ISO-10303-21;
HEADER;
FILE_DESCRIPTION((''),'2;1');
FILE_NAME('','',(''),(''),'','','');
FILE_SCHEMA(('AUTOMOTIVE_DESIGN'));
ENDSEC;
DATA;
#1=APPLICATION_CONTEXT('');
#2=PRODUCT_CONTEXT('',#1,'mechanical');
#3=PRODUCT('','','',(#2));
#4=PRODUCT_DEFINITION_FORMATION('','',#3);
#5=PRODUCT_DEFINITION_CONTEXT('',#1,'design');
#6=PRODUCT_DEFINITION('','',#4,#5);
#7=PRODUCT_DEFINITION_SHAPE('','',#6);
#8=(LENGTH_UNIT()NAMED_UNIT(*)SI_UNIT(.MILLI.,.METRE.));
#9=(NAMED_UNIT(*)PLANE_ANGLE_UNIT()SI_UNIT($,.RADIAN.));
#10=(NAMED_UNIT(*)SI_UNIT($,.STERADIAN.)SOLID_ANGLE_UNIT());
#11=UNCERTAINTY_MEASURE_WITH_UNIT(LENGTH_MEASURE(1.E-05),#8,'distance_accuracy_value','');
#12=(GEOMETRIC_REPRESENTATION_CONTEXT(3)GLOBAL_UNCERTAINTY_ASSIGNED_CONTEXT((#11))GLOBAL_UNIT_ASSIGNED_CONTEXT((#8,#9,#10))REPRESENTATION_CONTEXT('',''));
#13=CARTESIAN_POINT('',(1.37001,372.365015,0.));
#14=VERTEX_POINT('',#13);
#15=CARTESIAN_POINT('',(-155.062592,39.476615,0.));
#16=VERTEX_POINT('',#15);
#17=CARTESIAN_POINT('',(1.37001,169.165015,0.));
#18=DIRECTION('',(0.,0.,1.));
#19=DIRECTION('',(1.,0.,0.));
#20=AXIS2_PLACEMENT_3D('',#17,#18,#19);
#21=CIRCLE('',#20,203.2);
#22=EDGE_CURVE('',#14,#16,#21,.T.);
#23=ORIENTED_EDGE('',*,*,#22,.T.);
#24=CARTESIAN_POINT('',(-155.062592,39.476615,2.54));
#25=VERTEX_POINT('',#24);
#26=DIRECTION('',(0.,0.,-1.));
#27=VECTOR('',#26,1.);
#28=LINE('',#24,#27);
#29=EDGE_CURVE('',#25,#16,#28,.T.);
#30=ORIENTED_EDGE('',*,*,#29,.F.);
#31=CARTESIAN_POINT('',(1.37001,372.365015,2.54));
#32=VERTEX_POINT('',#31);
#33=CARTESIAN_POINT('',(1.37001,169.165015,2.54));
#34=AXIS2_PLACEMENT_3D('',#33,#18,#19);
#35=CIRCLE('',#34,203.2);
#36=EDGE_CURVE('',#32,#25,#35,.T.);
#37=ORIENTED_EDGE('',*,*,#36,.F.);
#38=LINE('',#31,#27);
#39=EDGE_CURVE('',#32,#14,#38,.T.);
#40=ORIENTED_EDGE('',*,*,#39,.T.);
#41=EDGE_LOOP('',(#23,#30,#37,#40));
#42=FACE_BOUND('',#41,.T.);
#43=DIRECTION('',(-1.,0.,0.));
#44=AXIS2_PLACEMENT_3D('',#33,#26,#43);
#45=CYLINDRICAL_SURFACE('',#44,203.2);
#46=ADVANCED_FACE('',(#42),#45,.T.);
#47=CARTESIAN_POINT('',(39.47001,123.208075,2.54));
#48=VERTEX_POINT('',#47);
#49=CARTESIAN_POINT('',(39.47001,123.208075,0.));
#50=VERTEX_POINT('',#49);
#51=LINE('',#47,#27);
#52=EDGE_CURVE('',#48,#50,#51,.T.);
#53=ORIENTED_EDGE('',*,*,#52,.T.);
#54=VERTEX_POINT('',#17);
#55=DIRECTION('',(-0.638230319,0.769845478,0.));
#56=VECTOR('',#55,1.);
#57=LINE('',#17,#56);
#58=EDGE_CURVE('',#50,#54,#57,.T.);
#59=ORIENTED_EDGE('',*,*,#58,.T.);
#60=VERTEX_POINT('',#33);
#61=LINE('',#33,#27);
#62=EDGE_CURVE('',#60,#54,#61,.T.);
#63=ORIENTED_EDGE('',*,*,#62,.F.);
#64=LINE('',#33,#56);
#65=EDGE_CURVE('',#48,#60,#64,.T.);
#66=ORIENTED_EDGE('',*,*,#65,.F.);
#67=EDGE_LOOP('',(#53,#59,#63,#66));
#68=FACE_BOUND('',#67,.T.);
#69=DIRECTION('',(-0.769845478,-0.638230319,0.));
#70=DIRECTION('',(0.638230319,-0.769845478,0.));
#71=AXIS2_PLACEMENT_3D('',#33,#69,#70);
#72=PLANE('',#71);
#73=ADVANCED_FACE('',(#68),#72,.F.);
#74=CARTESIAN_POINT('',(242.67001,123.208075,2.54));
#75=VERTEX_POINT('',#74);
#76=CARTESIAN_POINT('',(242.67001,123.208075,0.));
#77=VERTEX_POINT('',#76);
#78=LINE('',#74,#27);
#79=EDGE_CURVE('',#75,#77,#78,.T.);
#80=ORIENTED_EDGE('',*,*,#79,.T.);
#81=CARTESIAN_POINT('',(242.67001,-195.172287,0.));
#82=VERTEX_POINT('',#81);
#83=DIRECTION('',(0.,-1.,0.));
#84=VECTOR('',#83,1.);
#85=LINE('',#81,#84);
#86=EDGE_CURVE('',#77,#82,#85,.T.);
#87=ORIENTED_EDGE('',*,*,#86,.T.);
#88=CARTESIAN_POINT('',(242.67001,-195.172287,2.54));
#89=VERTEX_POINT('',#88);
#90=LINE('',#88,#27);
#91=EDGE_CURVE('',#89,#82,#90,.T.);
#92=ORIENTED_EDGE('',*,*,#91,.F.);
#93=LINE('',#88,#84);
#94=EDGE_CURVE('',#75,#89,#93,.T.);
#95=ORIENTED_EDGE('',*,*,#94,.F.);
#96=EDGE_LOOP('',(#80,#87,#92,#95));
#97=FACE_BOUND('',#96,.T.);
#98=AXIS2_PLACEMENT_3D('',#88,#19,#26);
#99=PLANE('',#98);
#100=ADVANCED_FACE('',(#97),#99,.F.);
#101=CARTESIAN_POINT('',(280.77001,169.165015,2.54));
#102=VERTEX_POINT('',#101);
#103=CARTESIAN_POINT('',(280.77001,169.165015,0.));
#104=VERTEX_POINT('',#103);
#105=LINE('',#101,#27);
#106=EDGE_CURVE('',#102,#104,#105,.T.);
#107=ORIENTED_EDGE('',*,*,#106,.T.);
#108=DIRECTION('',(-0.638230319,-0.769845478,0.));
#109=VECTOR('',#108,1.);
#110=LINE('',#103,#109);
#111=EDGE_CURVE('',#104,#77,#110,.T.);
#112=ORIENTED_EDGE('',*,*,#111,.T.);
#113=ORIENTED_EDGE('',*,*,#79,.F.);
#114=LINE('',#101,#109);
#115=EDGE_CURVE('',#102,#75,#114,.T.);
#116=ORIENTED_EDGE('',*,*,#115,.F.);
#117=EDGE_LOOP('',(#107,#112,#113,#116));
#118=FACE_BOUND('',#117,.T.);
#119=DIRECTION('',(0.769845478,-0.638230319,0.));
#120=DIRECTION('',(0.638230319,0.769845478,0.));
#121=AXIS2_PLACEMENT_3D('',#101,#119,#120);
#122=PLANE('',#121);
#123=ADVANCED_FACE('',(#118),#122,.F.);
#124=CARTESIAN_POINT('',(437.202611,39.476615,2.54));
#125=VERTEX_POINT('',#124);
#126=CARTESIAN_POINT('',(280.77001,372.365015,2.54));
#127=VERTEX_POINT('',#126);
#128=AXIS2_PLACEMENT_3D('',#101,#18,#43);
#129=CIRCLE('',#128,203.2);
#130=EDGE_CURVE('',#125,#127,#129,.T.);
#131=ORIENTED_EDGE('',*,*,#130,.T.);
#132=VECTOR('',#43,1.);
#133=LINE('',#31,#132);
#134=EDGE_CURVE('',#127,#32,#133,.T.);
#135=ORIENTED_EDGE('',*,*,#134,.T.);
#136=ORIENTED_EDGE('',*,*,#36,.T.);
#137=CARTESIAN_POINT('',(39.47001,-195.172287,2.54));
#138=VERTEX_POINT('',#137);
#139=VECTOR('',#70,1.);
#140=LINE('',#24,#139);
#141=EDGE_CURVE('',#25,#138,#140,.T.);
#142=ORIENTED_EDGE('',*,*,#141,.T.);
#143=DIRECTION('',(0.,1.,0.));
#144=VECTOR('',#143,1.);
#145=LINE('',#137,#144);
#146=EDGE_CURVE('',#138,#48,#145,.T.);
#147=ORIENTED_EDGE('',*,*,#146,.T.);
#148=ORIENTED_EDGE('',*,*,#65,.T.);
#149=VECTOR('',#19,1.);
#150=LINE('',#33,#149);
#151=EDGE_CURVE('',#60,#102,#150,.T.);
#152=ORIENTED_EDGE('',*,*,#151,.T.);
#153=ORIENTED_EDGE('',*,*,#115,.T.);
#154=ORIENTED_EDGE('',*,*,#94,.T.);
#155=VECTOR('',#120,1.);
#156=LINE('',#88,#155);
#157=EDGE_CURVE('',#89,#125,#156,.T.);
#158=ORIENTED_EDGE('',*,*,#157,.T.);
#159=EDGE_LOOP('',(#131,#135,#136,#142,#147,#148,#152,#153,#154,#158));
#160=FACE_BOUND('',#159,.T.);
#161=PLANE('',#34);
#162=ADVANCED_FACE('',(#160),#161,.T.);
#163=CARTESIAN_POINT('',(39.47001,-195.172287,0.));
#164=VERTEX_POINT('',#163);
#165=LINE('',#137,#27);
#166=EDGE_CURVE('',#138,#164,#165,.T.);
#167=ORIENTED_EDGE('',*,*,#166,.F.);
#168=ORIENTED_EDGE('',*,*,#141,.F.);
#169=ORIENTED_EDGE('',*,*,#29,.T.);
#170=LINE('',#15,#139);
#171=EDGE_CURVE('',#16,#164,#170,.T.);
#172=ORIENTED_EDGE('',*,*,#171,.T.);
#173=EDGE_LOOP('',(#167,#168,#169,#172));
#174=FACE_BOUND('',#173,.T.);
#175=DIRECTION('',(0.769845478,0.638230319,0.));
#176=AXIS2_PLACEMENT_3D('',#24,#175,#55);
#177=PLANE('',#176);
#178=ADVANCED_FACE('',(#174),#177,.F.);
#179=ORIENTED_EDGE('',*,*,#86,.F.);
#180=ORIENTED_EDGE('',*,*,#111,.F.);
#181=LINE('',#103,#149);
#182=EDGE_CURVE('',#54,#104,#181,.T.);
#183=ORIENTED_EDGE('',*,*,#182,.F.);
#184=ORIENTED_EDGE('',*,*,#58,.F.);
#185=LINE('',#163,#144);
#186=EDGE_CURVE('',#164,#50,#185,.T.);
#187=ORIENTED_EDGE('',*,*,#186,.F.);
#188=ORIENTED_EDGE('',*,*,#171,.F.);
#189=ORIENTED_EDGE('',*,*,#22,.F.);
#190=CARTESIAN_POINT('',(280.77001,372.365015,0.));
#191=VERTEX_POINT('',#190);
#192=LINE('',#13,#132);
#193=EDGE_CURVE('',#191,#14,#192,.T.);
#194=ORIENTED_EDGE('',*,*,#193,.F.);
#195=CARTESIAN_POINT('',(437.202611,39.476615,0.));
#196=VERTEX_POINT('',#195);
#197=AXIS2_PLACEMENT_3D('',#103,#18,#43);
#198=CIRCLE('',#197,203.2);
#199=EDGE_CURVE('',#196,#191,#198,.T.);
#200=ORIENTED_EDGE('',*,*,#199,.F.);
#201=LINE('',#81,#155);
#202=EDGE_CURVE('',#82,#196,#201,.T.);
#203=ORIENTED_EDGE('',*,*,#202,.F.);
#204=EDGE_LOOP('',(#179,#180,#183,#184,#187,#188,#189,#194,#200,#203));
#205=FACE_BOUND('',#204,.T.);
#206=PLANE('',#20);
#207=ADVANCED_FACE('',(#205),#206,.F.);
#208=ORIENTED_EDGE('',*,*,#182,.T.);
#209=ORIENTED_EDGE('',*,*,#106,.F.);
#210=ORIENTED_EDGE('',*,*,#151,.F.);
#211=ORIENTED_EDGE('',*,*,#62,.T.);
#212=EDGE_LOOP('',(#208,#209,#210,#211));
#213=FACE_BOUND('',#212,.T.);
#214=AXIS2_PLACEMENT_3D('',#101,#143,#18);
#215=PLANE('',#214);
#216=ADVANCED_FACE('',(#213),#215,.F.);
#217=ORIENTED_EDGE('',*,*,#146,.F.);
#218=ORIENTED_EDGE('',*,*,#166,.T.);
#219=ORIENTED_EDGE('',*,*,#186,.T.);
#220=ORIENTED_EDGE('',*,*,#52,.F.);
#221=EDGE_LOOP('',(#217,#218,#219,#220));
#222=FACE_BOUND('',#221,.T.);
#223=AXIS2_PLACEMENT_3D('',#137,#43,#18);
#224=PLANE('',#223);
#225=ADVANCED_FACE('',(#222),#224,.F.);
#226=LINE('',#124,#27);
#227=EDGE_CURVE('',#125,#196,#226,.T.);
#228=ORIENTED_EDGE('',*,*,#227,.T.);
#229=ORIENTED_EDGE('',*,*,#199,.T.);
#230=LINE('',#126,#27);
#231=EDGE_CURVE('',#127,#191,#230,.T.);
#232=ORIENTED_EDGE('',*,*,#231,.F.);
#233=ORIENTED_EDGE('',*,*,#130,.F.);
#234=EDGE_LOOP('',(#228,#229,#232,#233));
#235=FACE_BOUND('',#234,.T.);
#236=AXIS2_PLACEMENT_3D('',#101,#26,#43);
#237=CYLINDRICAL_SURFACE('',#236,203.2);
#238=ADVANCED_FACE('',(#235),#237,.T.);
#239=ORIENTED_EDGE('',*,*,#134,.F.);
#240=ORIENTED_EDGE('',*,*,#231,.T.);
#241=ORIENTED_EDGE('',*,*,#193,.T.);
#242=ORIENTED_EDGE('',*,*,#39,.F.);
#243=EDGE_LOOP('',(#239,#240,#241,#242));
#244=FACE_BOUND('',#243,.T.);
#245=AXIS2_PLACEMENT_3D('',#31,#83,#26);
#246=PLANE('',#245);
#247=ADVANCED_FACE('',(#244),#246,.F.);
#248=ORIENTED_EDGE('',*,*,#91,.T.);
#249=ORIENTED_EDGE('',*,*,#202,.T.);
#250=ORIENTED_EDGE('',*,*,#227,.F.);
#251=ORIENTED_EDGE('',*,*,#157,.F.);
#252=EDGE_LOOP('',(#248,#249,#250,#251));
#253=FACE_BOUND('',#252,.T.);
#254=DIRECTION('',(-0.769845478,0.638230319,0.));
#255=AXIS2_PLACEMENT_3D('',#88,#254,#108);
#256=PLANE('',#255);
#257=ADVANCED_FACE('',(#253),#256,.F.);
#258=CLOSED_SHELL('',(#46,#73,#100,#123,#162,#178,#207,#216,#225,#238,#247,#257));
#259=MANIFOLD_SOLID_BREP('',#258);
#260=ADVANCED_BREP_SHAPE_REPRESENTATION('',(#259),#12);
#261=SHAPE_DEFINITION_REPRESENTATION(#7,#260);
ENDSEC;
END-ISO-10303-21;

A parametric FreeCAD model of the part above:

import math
import FreeCAD as App
import Part
import Sketcher

V = App.Vector
Q = App.Units.Quantity

doc = App.newDocument("Part")
body = doc.addObject("PartDesign::Body", "Body")

sketch1 = doc.addObject("Sketcher::SketchObject", "Sketch")
body.addObject(sketch1)
sketch1.AttachmentSupport = (doc.XY_Plane, [""])
sketch1.MapMode = "FlatFace"
sketch1.addGeometry(Part.LineSegment(V(281, 169, 0), V(243, 123, 0)), False)
sketch1.addGeometry(Part.LineSegment(V(243, 123, 0), V(243, -195, 0)), False)
sketch1.addGeometry(Part.LineSegment(V(243, -195, 0), V(437, 39, 0)), False)
sketch1.addGeometry(Part.ArcOfCircle(Part.Circle(V(281, 169, 0), V(0, 0, 1), 203), math.radians(-40), math.radians(90)), False)
sketch1.addGeometry(Part.LineSegment(V(281, 372, 0), V(1, 372, 0)), False)
sketch1.addGeometry(Part.ArcOfCircle(Part.Circle(V(1, 169, 0), V(0, 0, 1), 203), math.radians(90), math.radians(220)), False)
sketch1.addGeometry(Part.LineSegment(V(-155, 39, 0), V(39, -195, 0)), False)
sketch1.addGeometry(Part.LineSegment(V(39, -195, 0), V(39, 123, 0)), False)
sketch1.addGeometry(Part.LineSegment(V(39, 123, 0), V(1, 169, 0)), False)
sketch1.addGeometry(Part.LineSegment(V(1, 169, 0), V(281, 169, 0)), False)
sketch1.addConstraint(Sketcher.Constraint("Coincident", 0, 2, 1, 1))
sketch1.addConstraint(Sketcher.Constraint("Coincident", 1, 2, 2, 1))
sketch1.addConstraint(Sketcher.Constraint("Tangent", 2, 2, 3, 1))
sketch1.addConstraint(Sketcher.Constraint("Tangent", 3, 2, 4, 1))
sketch1.addConstraint(Sketcher.Constraint("Tangent", 4, 2, 5, 1))
sketch1.addConstraint(Sketcher.Constraint("Tangent", 5, 2, 6, 1))
sketch1.addConstraint(Sketcher.Constraint("Coincident", 6, 2, 7, 1))
sketch1.addConstraint(Sketcher.Constraint("Coincident", 7, 2, 8, 1))
sketch1.addConstraint(Sketcher.Constraint("Coincident", 8, 2, 9, 1))
sketch1.addConstraint(Sketcher.Constraint("Coincident", 9, 2, 0, 1))
sketch1.addConstraint(Sketcher.Constraint("Vertical", 1))
sketch1.addConstraint(Sketcher.Constraint("Horizontal", 4))
sketch1.addConstraint(Sketcher.Constraint("Vertical", 7))
sketch1.addConstraint(Sketcher.Constraint("Horizontal", 9))
sketch1.addConstraint(Sketcher.Constraint("Coincident", 8, 2, 5, 3))
sketch1.addConstraint(Sketcher.Constraint("Coincident", 9, 2, 3, 3))
sketch1.addConstraint(Sketcher.Constraint("Parallel", 0, 2))
sketch1.addConstraint(Sketcher.Constraint("Parallel", 6, 8))
sketch1.addConstraint(Sketcher.Constraint("Horizontal", 2, 2, 5, 2))
sketch1.addConstraint(Sketcher.Constraint("Horizontal", 1, 2, 6, 2))
sketch1.addConstraint(Sketcher.Constraint("Radius", 3, Q("8 in")))
sketch1.addConstraint(Sketcher.Constraint("DistanceX", 4, 2, 4, 1, Q("11 in")))
sketch1.addConstraint(Sketcher.Constraint("Distance", 2, Q("12 in")))
sketch1.addConstraint(Sketcher.Constraint("DistanceX", 6, 2, 1, 2, Q("8 in")))
sketch1.addConstraint(Sketcher.Constraint("DistanceX", -1, 1, 3, 3, 280.77001))
sketch1.addConstraint(Sketcher.Constraint("DistanceY", -1, 1, 3, 3, 169.165015))
pad1 = doc.addObject("PartDesign::Pad", "Pad")
body.addObject(pad1)
pad1.Profile = sketch1
pad1.Length = Q("0.1 in")

doc.recompute()
